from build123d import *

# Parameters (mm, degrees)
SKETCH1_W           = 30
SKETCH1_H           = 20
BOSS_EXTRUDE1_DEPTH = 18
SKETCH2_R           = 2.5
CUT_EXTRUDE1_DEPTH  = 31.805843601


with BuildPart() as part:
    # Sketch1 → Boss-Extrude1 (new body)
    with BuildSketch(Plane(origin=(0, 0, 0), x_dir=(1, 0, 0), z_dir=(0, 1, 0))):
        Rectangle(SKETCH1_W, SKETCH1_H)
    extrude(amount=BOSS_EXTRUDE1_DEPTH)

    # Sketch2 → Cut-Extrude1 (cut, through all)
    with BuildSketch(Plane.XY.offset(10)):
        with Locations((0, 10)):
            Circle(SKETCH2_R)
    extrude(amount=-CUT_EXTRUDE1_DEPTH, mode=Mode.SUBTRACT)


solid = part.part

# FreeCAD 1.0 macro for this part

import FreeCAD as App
import Part
import Sketcher

V = App.Vector


def add_polygon(sketch, points):
    """Adds a closed chain of lines whose ends are joined by coincident constraints."""
    first, n = sketch.GeometryCount, len(points)
    for a, b in zip(points, points[1:] + points[:1]):
        sketch.addGeometry(Part.LineSegment(App.Vector(*a, 0), App.Vector(*b, 0)), False)
    for i in range(n):
        sketch.addConstraint(Sketcher.Constraint("Coincident", first + i, 2, first + (i + 1) % n, 1))

doc = App.newDocument("Part")
body = doc.addObject("PartDesign::Body", "Body")

# Sketch on XZ plane
sketch1 = doc.addObject("Sketcher::SketchObject", "Sketch")
body.addObject(sketch1)
sketch1.AttachmentSupport = (doc.XZ_Plane, [""])
sketch1.MapMode = "FlatFace"
add_polygon(sketch1, [(-15, -10), (-15, 10), (15, 10), (15, -10)])  # lines 0-3
sketch1.addConstraint(Sketcher.Constraint("Vertical", 0))
sketch1.addConstraint(Sketcher.Constraint("Horizontal", 1))
sketch1.addConstraint(Sketcher.Constraint("Vertical", 2))
sketch1.addConstraint(Sketcher.Constraint("Horizontal", 3))
sketch1.addConstraint(Sketcher.Constraint("Symmetric", 0, 2, 2, 2, -1, 1))
sketch1.addConstraint(Sketcher.Constraint("DistanceX", 1, 1, 1, 2, 30.0))
sketch1.addConstraint(Sketcher.Constraint("DistanceY", 0, 1, 0, 2, 20.0))
pad1 = doc.addObject("PartDesign::Pad", "Pad")
body.addObject(pad1)
pad1.Profile = sketch1
pad1.Length = 18
pad1.Reversed = True

# Sketch on XY plane
sketch2 = doc.addObject("Sketcher::SketchObject", "Sketch001")
body.addObject(sketch2)
sketch2.AttachmentSupport = (doc.XY_Plane, [""])
sketch2.MapMode = "FlatFace"
sketch2.AttachmentOffset = App.Placement(V(0, 0, 10), App.Rotation())
sketch2.addGeometry(Part.Circle(V(0, 10, 0), V(0, 0, 1), 2.5), False)
sketch2.addConstraint(Sketcher.Constraint("PointOnObject", 0, 3, -2))
sketch2.addConstraint(Sketcher.Constraint("Diameter", 0, 5.0))
sketch2.addConstraint(Sketcher.Constraint("DistanceY", -1, 1, 0, 3, 10.0))
pocket1 = doc.addObject("PartDesign::Pocket", "Pocket")
body.addObject(pocket1)
pocket1.Profile = sketch2
pocket1.Type = "ThroughAll"

doc.recompute()
